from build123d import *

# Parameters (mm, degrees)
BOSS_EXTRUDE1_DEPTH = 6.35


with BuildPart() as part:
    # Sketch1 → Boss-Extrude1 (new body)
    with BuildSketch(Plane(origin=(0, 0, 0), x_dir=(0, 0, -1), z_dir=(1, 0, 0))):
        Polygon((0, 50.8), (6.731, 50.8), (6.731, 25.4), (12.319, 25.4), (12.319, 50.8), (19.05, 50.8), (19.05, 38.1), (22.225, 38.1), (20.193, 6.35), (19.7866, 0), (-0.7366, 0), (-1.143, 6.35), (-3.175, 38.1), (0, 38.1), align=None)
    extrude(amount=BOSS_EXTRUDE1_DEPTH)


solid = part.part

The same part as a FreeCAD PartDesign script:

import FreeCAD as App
import Part
import Sketcher
Q = App.Units.Quantity

doc = App.newDocument("Part")
body = doc.addObject("PartDesign::Body", "Body")

# Sketch on YZ plane
sketch1 = body.newObject("Sketcher::SketchObject", "Sketch")
sketch1.AttachmentSupport = (doc.getObject("YZ_Plane"), [""])
sketch1.MapMode = "FlatFace"
sketch1.addGeometry(Part.LineSegment(App.Vector(50.8, -6.7, 0), App.Vector(50.8, 0, 0)), False)
sketch1.addGeometry(Part.LineSegment(App.Vector(50.8, 0, 0), App.Vector(38.1, 0, 0)), False)
sketch1.addGeometry(Part.LineSegment(App.Vector(38.1, 0, 0), App.Vector(38.1, 3.2, 0)), False)
sketch1.addGeometry(Part.LineSegment(App.Vector(38.1, 3.2, 0), App.Vector(0, 0.7, 0)), False)
sketch1.addGeometry(Part.LineSegment(App.Vector(0, 0.7, 0), App.Vector(0, -19.8, 0)), False)
sketch1.addGeometry(Part.LineSegment(App.Vector(0, -19.8, 0), App.Vector(38.1, -22.2, 0)), False)
sketch1.addGeometry(Part.LineSegment(App.Vector(38.1, -22.2, 0), App.Vector(38.1, -19.1, 0)), False)
sketch1.addGeometry(Part.LineSegment(App.Vector(38.1, -19.1, 0), App.Vector(50.8, -19.1, 0)), False)
sketch1.addGeometry(Part.LineSegment(App.Vector(50.8, -19.1, 0), App.Vector(50.8, -12.3, 0)), False)
sketch1.addGeometry(Part.LineSegment(App.Vector(50.8, -12.3, 0), App.Vector(25.4, -12.3, 0)), False)
sketch1.addGeometry(Part.LineSegment(App.Vector(25.4, -12.3, 0), App.Vector(25.4, -6.7, 0)), False)
sketch1.addGeometry(Part.LineSegment(App.Vector(25.4, -6.7, 0), App.Vector(50.8, -6.7, 0)), False)
sketch1.addConstraint(Sketcher.Constraint("Coincident", 0, 2, 1, 1))
sketch1.addConstraint(Sketcher.Constraint("Coincident", 1, 2, 2, 1))
sketch1.addConstraint(Sketcher.Constraint("Coincident", 2, 2, 3, 1))
sketch1.addConstraint(Sketcher.Constraint("Coincident", 3, 2, 4, 1))
sketch1.addConstraint(Sketcher.Constraint("Coincident", 4, 2, 5, 1))
sketch1.addConstraint(Sketcher.Constraint("Coincident", 5, 2, 6, 1))
sketch1.addConstraint(Sketcher.Constraint("Coincident", 6, 2, 7, 1))
sketch1.addConstraint(Sketcher.Constraint("Coincident", 7, 2, 8, 1))
sketch1.addConstraint(Sketcher.Constraint("Coincident", 8, 2, 9, 1))
sketch1.addConstraint(Sketcher.Constraint("Coincident", 9, 2, 10, 1))
sketch1.addConstraint(Sketcher.Constraint("Coincident", 10, 2, 11, 1))
sketch1.addConstraint(Sketcher.Constraint("Coincident", 11, 2, 0, 1))
sketch1.addConstraint(Sketcher.Constraint("Vertical", 0))
sketch1.addConstraint(Sketcher.Constraint("Horizontal", 1))
sketch1.addConstraint(Sketcher.Constraint("Vertical", 2))
sketch1.addConstraint(Sketcher.Constraint("Vertical", 4))
sketch1.addConstraint(Sketcher.Constraint("Vertical", 6))
sketch1.addConstraint(Sketcher.Constraint("Horizontal", 7))
sketch1.addConstraint(Sketcher.Constraint("Vertical", 8))
sketch1.addConstraint(Sketcher.Constraint("Horizontal", 9))
sketch1.addConstraint(Sketcher.Constraint("Vertical", 10))
sketch1.addConstraint(Sketcher.Constraint("Horizontal", 11))
sketch1.addConstraint(Sketcher.Constraint("PointOnObject", 0, 2, -1))
sketch1.addConstraint(Sketcher.Constraint("PointOnObject", 3, 2, -2))
sketch1.addConstraint(Sketcher.Constraint("Vertical", 2, 2, 5, 2))
sketch1.addConstraint(Sketcher.Constraint("Vertical", 0, 2, 7, 2))
sketch1.addConstraint(Sketcher.Constraint("Equal", 2, 6))
sketch1.addConstraint(Sketcher.Constraint("Equal", 0, 8))
sketch1.addConstraint(Sketcher.Constraint("Equal", 3, 5))
sketch1.addConstraint(Sketcher.Constraint("DistanceX", 9, 2, 9, 1, Q("1 in")))
sketch1.addConstraint(Sketcher.Constraint("DistanceX", 1, 2, 1, 1, Q("0.5 in")))
sketch1.addConstraint(Sketcher.Constraint("DistanceX", -1, 1, 0, 2, Q("2 in")))
sketch1.addConstraint(Sketcher.Constraint("DistanceY", 5, 2, 2, 2, Q("1 in")))
sketch1.addConstraint(Sketcher.Constraint("DistanceY", 10, 1, 10, 2, Q("0.22 in")))
sketch1.addConstraint(Sketcher.Constraint("DistanceY", 0, 1, 0, 2, Q("0.265 in")))
sketch1.addConstraint(Sketcher.Constraint("DistanceY", 4, 2, 4, 1, Q("0.808 in")))
pad1 = body.newObject("PartDesign::Pad", "Pad")
pad1.Profile = sketch1
pad1.Length = Q("0.25 in")

doc.recompute()
